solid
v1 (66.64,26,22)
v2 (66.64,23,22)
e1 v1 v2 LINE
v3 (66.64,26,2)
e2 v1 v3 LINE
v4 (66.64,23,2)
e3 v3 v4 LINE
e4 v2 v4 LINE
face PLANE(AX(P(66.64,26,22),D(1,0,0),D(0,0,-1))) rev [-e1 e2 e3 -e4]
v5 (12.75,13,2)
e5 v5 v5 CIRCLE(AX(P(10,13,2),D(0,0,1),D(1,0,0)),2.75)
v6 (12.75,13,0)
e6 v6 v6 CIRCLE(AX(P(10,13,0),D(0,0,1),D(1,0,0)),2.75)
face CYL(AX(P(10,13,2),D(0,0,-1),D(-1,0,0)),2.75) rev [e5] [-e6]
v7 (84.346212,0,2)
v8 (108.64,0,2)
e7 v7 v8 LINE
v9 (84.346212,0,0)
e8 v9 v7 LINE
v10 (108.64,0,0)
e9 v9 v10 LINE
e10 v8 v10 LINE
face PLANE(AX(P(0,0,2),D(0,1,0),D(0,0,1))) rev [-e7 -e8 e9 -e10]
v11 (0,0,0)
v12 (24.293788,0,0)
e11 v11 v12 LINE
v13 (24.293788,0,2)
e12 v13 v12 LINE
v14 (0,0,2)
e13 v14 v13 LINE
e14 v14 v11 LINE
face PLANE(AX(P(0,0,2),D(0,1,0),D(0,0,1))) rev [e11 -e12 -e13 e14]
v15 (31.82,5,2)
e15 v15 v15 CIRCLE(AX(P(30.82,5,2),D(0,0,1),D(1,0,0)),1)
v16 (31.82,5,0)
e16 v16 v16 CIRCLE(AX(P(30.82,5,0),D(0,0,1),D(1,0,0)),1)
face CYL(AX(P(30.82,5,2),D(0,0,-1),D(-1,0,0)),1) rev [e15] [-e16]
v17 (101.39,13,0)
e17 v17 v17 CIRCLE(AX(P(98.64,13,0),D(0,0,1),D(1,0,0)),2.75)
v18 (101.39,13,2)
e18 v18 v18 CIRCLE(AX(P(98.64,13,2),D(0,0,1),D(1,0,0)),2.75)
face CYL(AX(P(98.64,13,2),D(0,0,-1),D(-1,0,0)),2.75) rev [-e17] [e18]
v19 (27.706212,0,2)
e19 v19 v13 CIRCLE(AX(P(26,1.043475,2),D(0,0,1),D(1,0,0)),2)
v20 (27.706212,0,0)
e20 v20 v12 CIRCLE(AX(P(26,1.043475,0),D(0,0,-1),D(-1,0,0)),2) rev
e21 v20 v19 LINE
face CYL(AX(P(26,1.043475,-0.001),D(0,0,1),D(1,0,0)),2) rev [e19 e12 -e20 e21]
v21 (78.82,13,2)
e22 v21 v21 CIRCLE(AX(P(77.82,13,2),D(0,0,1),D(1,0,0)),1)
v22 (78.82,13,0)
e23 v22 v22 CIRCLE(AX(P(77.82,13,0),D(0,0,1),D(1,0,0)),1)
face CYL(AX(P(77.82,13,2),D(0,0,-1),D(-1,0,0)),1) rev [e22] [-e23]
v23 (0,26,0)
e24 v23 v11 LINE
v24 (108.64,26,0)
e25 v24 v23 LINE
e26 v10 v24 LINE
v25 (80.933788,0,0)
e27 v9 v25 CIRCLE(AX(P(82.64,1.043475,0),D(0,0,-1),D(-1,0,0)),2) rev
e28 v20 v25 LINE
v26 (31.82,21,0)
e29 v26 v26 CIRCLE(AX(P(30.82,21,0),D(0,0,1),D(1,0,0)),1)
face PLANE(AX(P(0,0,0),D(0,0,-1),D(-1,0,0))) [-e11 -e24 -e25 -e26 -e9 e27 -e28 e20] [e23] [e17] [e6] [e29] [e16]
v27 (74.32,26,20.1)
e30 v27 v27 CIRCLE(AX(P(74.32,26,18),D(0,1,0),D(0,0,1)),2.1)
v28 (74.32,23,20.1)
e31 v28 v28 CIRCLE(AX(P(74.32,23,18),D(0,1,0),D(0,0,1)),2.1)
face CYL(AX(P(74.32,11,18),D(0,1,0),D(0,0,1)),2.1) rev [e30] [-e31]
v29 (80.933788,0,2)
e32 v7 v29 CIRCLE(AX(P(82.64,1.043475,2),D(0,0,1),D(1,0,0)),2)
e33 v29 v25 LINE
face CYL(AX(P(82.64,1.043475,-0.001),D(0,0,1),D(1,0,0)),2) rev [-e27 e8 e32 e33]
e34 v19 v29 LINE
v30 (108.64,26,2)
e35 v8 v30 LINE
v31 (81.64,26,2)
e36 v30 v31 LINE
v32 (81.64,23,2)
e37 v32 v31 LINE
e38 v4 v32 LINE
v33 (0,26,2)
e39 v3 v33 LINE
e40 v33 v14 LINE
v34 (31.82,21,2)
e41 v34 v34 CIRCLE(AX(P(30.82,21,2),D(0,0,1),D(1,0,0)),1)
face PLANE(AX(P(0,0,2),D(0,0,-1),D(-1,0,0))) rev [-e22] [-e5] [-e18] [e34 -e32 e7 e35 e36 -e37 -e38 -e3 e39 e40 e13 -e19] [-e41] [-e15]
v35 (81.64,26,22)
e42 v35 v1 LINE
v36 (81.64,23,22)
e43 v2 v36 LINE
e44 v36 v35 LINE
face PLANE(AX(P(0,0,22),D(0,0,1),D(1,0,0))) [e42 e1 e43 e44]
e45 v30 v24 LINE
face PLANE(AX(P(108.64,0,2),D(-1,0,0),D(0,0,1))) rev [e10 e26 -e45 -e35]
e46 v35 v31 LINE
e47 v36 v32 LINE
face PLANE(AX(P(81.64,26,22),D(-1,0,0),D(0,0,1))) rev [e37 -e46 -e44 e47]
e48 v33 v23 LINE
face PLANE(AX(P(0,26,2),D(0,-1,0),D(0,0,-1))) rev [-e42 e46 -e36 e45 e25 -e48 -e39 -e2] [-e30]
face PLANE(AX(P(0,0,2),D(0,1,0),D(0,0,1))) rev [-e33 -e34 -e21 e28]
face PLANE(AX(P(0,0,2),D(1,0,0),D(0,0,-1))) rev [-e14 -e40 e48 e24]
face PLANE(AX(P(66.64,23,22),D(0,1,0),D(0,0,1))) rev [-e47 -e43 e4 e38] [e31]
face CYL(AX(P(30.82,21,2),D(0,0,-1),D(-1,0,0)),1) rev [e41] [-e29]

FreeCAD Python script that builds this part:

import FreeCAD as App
import Part
import Sketcher
from FreeCAD import Vector

doc = App.newDocument("Part")
params = doc.addObject("Spreadsheet::Sheet", "Params")
for row, (alias, value) in enumerate([
    ("sketch1_diameter", "2 mm"),
    ("sketch1_diameter2", "5.5 mm"),
    ("sketch1_height", "26 mm"),
    ("sketch1_width", "108.64 mm"),
    ("pad1_length", "2 mm"),
    ("sketch2_diameter", "4 mm"),
    ("sketch3_diameter", "4 mm"),
    ("sketch4_width", "15 mm"),
    ("sketch4_height", "3 mm"),
    ("pad2_length", "20 mm"),
    ("sketch5_diameter", "4.2 mm"),
    ("pocket3_length", "15 mm"),
], start=1):
    params.set(f"A{row}", alias)
    params.set(f"B{row}", "=" + value)
    params.setAlias(f"B{row}", alias)

body = doc.addObject("PartDesign::Body", "Body")

# Sketch on XY plane
sketch1 = body.newObject("Sketcher::SketchObject", "Sketch")
sketch1.AttachmentSupport = (doc.getObject("XY_Plane"), [""])
sketch1.MapMode = "FlatFace"
sketch1.addGeometry(Part.LineSegment(Vector(0, 26, 0), Vector(0, 0, 0)), False)
sketch1.addGeometry(Part.LineSegment(Vector(0, 0, 0), Vector(108.64, 0, 0)), False)
sketch1.addGeometry(Part.LineSegment(Vector(108.64, 0, 0), Vector(108.64, 26, 0)), False)
sketch1.addGeometry(Part.LineSegment(Vector(108.64, 26, 0), Vector(0, 26, 0)), False)
sketch1.addGeometry(Part.Circle(Vector(30.82, 5, 0), Vector(0, 0, 1), 1), False)
sketch1.addGeometry(Part.Circle(Vector(10, 13, 0), Vector(0, 0, 1), 2.75), False)
sketch1.addGeometry(Part.Circle(Vector(30.82, 21, 0), Vector(0, 0, 1), 1), False)
sketch1.addGeometry(Part.Circle(Vector(77.82, 13, 0), Vector(0, 0, 1), 1), False)
sketch1.addGeometry(Part.Circle(Vector(98.64, 13, 0), Vector(0, 0, 1), 2.75), False)
sketch1.addConstraint(Sketcher.Constraint("Coincident", 0, 2, 1, 1))
sketch1.addConstraint(Sketcher.Constraint("Coincident", 1, 2, 2, 1))
sketch1.addConstraint(Sketcher.Constraint("Coincident", 2, 2, 3, 1))
sketch1.addConstraint(Sketcher.Constraint("Coincident", 3, 2, 0, 1))
sketch1.addConstraint(Sketcher.Constraint("Vertical", 0))
sketch1.addConstraint(Sketcher.Constraint("Horizontal", 1))
sketch1.addConstraint(Sketcher.Constraint("Vertical", 2))
sketch1.addConstraint(Sketcher.Constraint("Horizontal", 3))
sketch1.addConstraint(Sketcher.Constraint("Coincident", 0, 2, -1, 1))
sketch1.addConstraint(Sketcher.Constraint("Equal", 4, 6))
sketch1.addConstraint(Sketcher.Constraint("Equal", 6, 7))
sketch1.addConstraint(Sketcher.Constraint("Equal", 5, 8))
sketch1.addConstraint(Sketcher.Constraint("Horizontal", 5, 3, 7, 3))
sketch1.addConstraint(Sketcher.Constraint("Horizontal", 7, 3, 8, 3))
sketch1.addConstraint(Sketcher.Constraint("Vertical", 4, 3, 6, 3))
sketch1.addConstraint(Sketcher.Constraint("Diameter", 4, 2.0))
sketch1.addConstraint(Sketcher.Constraint("Diameter", 5, 5.5))
sketch1.addConstraint(Sketcher.Constraint("DistanceY", 0, 2, 0, 1, 26.0))
sketch1.addConstraint(Sketcher.Constraint("DistanceY", -1, 1, 4, 3, 5.0))
sketch1.addConstraint(Sketcher.Constraint("DistanceX", -1, 1, 5, 3, 10.0))
sketch1.addConstraint(Sketcher.Constraint("DistanceY", -1, 1, 5, 3, 13.0))
sketch1.addConstraint(Sketcher.Constraint("DistanceY", -1, 1, 6, 3, 21.0))
sketch1.addConstraint(Sketcher.Constraint("DistanceX", 4, 3, 7, 3, 47.0))
sketch1.addConstraint(Sketcher.Constraint("DistanceX", 8, 3, 1, 2, 10.0))
sketch1.addConstraint(Sketcher.Constraint("DistanceX", 1, 1, 1, 2, 108.64))
sketch1.addConstraint(Sketcher.Constraint("DistanceX", -1, 1, 4, 3, 30.82))
sketch1.setExpression("Constraints[15]", "Params.sketch1_diameter")
sketch1.setExpression("Constraints[16]", "Params.sketch1_diameter2")
sketch1.setExpression("Constraints[17]", "Params.sketch1_height")
sketch1.setExpression("Constraints[24]", "Params.sketch1_width")
pad1 = body.newObject("PartDesign::Pad", "Pad")
pad1.Profile = sketch1
pad1.setExpression("Length", "Params.pad1_length")

# Sketch on XY plane
sketch2 = body.newObject("Sketcher::SketchObject", "Sketch001")
sketch2.AttachmentSupport = (doc.getObject("XY_Plane"), [""])
sketch2.MapMode = "FlatFace"
sketch2.AttachmentOffset = App.Placement(Vector(0, 0, 2), App.Rotation())
sketch2.addGeometry(Part.Circle(Vector(26, 1.043475, 0), Vector(0, 0, 1), 2), False)
sketch2.addConstraint(Sketcher.Constraint("Diameter", 0, 4.0))
sketch2.addConstraint(Sketcher.Constraint("DistanceX", -1, 1, 0, 3, 26.0))
sketch2.addConstraint(Sketcher.Constraint("DistanceY", -1, 1, 0, 3, 1.043475))
sketch2.setExpression("Constraints[0]", "Params.sketch2_diameter")
pocket1 = body.newObject("PartDesign::Pocket", "Pocket")
pocket1.Profile = sketch2
pocket1.Type = "UpToFirst"

# Sketch on XY plane
sketch3 = body.newObject("Sketcher::SketchObject", "Sketch002")
sketch3.AttachmentSupport = (doc.getObject("XY_Plane"), [""])
sketch3.MapMode = "FlatFace"
sketch3.AttachmentOffset = App.Placement(Vector(0, 0, 2), App.Rotation())
sketch3.addGeometry(Part.Circle(Vector(82.64, 1.043475, 0), Vector(0, 0, 1), 2), False)
sketch3.addConstraint(Sketcher.Constraint("Diameter", 0, 4.0))
sketch3.addConstraint(Sketcher.Constraint("DistanceX", -1, 1, 0, 3, 82.64))
sketch3.addConstraint(Sketcher.Constraint("DistanceY", -1, 1, 0, 3, 1.043475))
sketch3.setExpression("Constraints[0]", "Params.sketch3_diameter")
pocket2 = body.newObject("PartDesign::Pocket", "Pocket001")
pocket2.Profile = sketch3
pocket2.Type = "UpToFirst"

# Sketch on XY plane
sketch4 = body.newObject("Sketcher::SketchObject", "Sketch003")
sketch4.AttachmentSupport = (doc.getObject("XY_Plane"), [""])
sketch4.MapMode = "FlatFace"
sketch4.AttachmentOffset = App.Placement(Vector(0, 0, 2), App.Rotation())
sketch4.addGeometry(Part.LineSegment(Vector(66.64, 26, 0), Vector(66.64, 23, 0)), False)
sketch4.addGeometry(Part.LineSegment(Vector(66.64, 23, 0), Vector(81.64, 23, 0)), False)
sketch4.addGeometry(Part.LineSegment(Vector(81.64, 23, 0), Vector(81.64, 26, 0)), False)
sketch4.addGeometry(Part.LineSegment(Vector(81.64, 26, 0), Vector(66.64, 26, 0)), False)
sketch4.addConstraint(Sketcher.Constraint("Coincident", 0, 2, 1, 1))
sketch4.addConstraint(Sketcher.Constraint("Coincident", 1, 2, 2, 1))
sketch4.addConstraint(Sketcher.Constraint("Coincident", 2, 2, 3, 1))
sketch4.addConstraint(Sketcher.Constraint("Coincident", 3, 2, 0, 1))
sketch4.addConstraint(Sketcher.Constraint("Vertical", 0))
sketch4.addConstraint(Sketcher.Constraint("Horizontal", 1))
sketch4.addConstraint(Sketcher.Constraint("Vertical", 2))
sketch4.addConstraint(Sketcher.Constraint("Horizontal", 3))
sketch4.addConstraint(Sketcher.Constraint("DistanceX", 1, 1, 1, 2, 15.0))
sketch4.addConstraint(Sketcher.Constraint("DistanceY", 0, 2, 0, 1, 3.0))
sketch4.addConstraint(Sketcher.Constraint("DistanceY", -1, 1, 0, 2, 23.0))
sketch4.addConstraint(Sketcher.Constraint("DistanceX", -1, 1, 0, 2, 66.64))
sketch4.setExpression("Constraints[8]", "Params.sketch4_width")
sketch4.setExpression("Constraints[9]", "Params.sketch4_height")
pad2 = body.newObject("PartDesign::Pad", "Pad001")
pad2.Profile = sketch4
pad2.setExpression("Length", "Params.pad2_length")

# Sketch on XZ plane
sketch5 = body.newObject("Sketcher::SketchObject", "Sketch004")
sketch5.AttachmentSupport = (doc.getObject("XZ_Plane"), [""])
sketch5.MapMode = "FlatFace"
sketch5.AttachmentOffset = App.Placement(Vector(0, 0, -26), App.Rotation())
sketch5.addGeometry(Part.Circle(Vector(74.32, 18, 0), Vector(0, 0, 1), 2.1), False)
sketch5.addConstraint(Sketcher.Constraint("Diameter", 0, 4.2))
sketch5.addConstraint(Sketcher.Constraint("DistanceY", -1, 1, 0, 3, 18.0))
sketch5.addConstraint(Sketcher.Constraint("DistanceX", -1, 1, 0, 3, 74.32))
sketch5.setExpression("Constraints[0]", "Params.sketch5_diameter")
pocket3 = body.newObject("PartDesign::Pocket", "Pocket002")
pocket3.Profile = sketch5
pocket3.setExpression("Length", "Params.pocket3_length")
pocket3.Reversed = True

doc.recompute()
